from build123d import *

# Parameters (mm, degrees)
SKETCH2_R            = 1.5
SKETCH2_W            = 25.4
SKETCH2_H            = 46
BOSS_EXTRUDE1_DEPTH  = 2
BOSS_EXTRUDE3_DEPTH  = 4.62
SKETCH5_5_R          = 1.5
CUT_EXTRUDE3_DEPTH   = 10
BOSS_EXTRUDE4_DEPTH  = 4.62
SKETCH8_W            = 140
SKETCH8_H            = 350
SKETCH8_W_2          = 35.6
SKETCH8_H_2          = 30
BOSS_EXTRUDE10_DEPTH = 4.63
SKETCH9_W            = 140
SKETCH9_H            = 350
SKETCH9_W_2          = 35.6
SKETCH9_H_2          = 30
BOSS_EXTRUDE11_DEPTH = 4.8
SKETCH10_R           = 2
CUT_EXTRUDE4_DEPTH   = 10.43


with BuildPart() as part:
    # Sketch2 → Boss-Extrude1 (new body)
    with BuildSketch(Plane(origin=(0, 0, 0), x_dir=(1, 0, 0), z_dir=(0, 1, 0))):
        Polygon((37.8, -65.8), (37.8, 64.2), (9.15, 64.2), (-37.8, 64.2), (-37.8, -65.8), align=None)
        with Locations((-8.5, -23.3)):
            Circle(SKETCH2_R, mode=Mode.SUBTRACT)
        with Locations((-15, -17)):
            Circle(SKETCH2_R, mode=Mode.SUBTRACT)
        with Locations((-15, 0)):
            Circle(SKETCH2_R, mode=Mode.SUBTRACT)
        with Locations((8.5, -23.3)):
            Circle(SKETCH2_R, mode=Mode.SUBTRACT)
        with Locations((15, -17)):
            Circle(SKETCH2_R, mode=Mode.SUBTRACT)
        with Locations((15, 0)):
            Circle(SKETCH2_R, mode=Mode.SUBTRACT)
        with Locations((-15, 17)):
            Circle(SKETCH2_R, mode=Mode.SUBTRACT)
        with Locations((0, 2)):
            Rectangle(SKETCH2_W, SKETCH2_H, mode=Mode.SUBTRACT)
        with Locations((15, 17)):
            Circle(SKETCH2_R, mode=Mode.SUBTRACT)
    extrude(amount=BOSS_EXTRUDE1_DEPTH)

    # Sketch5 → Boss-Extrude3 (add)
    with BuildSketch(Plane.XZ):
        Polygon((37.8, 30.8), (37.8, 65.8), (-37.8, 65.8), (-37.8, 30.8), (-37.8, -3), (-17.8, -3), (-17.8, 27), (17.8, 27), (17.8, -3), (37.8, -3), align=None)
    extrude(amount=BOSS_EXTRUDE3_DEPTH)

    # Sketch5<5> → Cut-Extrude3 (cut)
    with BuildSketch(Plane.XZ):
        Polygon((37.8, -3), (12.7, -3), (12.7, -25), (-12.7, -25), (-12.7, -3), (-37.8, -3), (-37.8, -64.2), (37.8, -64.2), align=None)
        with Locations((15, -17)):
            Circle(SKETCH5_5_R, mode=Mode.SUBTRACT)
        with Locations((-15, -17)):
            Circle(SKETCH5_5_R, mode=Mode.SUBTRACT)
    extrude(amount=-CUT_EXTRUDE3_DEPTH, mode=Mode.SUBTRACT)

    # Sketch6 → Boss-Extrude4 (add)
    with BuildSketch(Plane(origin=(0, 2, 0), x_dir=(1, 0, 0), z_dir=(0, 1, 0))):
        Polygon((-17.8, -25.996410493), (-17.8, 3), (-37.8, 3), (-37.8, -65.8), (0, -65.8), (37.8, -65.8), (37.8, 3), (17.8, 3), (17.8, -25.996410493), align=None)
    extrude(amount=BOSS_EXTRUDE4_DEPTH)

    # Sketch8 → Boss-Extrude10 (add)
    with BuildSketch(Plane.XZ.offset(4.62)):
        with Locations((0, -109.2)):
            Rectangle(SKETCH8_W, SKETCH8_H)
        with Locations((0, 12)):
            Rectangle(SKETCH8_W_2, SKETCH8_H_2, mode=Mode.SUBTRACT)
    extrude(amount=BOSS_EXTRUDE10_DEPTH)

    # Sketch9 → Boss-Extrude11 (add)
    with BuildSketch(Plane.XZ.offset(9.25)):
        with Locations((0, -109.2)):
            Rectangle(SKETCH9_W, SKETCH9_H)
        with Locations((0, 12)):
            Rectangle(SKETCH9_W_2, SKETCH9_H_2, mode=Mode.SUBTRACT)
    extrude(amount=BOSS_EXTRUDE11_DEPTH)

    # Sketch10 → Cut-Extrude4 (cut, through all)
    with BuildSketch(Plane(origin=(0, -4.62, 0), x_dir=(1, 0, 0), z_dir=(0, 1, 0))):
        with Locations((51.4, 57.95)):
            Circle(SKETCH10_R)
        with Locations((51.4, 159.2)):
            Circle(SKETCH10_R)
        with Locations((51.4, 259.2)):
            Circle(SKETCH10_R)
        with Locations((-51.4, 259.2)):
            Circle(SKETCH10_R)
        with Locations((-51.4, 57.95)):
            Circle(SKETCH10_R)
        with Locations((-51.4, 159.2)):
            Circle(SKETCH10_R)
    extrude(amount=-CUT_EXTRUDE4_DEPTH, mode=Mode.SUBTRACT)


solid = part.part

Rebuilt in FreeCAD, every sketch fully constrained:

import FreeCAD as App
import Part
import Sketcher

V = App.Vector

doc = App.newDocument("Part")
params = doc.addObject("Spreadsheet::Sheet", "Params")
for row, (alias, value) in enumerate([
    ("sketch1_diameter", "3 mm"),
    ("sketch1_height", "130 mm"),
    ("sketch1_height2", "46 mm"),
    ("sketch1_width", "75.6 mm"),
    ("sketch1_width2", "25.4 mm"),
    ("pad1_length", "2 mm"),
    ("sketch2_width", "20 mm"),
    ("sketch2_height", "30 mm"),
    ("sketch2_width2", "75.6 mm"),
    ("sketch2_height2", "68.8 mm"),
    ("pad2_length", "4.62 mm"),
    ("sketch3_diameter", "3 mm"),
    ("sketch3_height", "22 mm"),
    ("sketch3_width", "25.1 mm"),
    ("sketch3_width2", "25.4 mm"),
    ("sketch3_height2", "61.2 mm"),
    ("pocket1_length", "10 mm"),
    ("sketch4_width", "20 mm"),
    ("sketch4_width2", "75.6 mm"),
    ("sketch4_height", "68.8 mm"),
    ("pad3_length", "4.62 mm"),
    ("sketch5_width", "140 mm"),
    ("sketch5_height", "350 mm"),
    ("sketch5_height2", "30 mm"),
    ("sketch5_width2", "35.6 mm"),
    ("pad4_length", "4.63 mm"),
    ("sketch6_width", "140 mm"),
    ("sketch6_height", "350 mm"),
    ("sketch6_height2", "30 mm"),
    ("sketch6_width2", "35.6 mm"),
    ("pad5_length", "4.8 mm"),
    ("sketch7_diameter", "4 mm"),
], start=1):
    params.set(f"A{row}", alias)
    params.set(f"B{row}", "=" + value)
    params.setAlias(f"B{row}", alias)

body = doc.addObject("PartDesign::Body", "Body")

# Sketch on XZ plane
sketch1 = body.newObject("Sketcher::SketchObject", "Sketch")
sketch1.AttachmentSupport = (doc.getObject("XZ_Plane"), [""])
sketch1.MapMode = "FlatFace"
sketch1.addGeometry([
    Part.LineSegment(V(37.8, 65.8, 0), V(37.8, -64.2, 0)),  # 0
    Part.LineSegment(V(37.8, -64.2, 0), V(-37.8, -64.2, 0)),  # 1
    Part.LineSegment(V(-37.8, -64.2, 0), V(-37.8, 65.8, 0)),  # 2
    Part.LineSegment(V(-37.8, 65.8, 0), V(37.8, 65.8, 0)),  # 3
    Part.Circle(V(-8.5, 23.3, 0), V(0, 0, 1), 1.5),  # 4
    Part.Circle(V(-15, 17, 0), V(0, 0, 1), 1.5),  # 5
    Part.Circle(V(-15, 0, 0), V(0, 0, 1), 1.5),  # 6
    Part.Circle(V(8.5, 23.3, 0), V(0, 0, 1), 1.5),  # 7
    Part.Circle(V(15, 17, 0), V(0, 0, 1), 1.5),  # 8
    Part.Circle(V(15, 0, 0), V(0, 0, 1), 1.5),  # 9
    Part.Circle(V(-15, -17, 0), V(0, 0, 1), 1.5),  # 10
    Part.LineSegment(V(12.7, 21, 0), V(-12.7, 21, 0)),  # 11
    Part.LineSegment(V(-12.7, 21, 0), V(-12.7, -25, 0)),  # 12
    Part.LineSegment(V(-12.7, -25, 0), V(12.7, -25, 0)),  # 13
    Part.LineSegment(V(12.7, -25, 0), V(12.7, 21, 0)),  # 14
    Part.Circle(V(15, -17, 0), V(0, 0, 1), 1.5),  # 15
], False)
sketch1.addConstraint([
    Sketcher.Constraint("Coincident", 0, 2, 1, 1),
    Sketcher.Constraint("Coincident", 1, 2, 2, 1),
    Sketcher.Constraint("Coincident", 2, 2, 3, 1),
    Sketcher.Constraint("Coincident", 3, 2, 0, 1),
    Sketcher.Constraint("Coincident", 11, 2, 12, 1),
    Sketcher.Constraint("Coincident", 12, 2, 13, 1),
    Sketcher.Constraint("Coincident", 13, 2, 14, 1),
    Sketcher.Constraint("Coincident", 14, 2, 11, 1),
    Sketcher.Constraint("Vertical", 0),
    Sketcher.Constraint("Horizontal", 1),
    Sketcher.Constraint("Vertical", 2),
    Sketcher.Constraint("Horizontal", 3),
    Sketcher.Constraint("Horizontal", 11),
    Sketcher.Constraint("Vertical", 12),
    Sketcher.Constraint("Horizontal", 13),
    Sketcher.Constraint("Vertical", 14),
    Sketcher.Constraint("Equal", 4, 5),
    Sketcher.Constraint("Equal", 5, 6),
    Sketcher.Constraint("Equal", 6, 7),
    Sketcher.Constraint("Equal", 7, 8),
    Sketcher.Constraint("Equal", 8, 9),
    Sketcher.Constraint("Equal", 9, 10),
    Sketcher.Constraint("Equal", 10, 15),
    Sketcher.Constraint("Symmetric", 6, 3, 9, 3, -1, 1),
    Sketcher.Constraint("Symmetric", 8, 3, 10, 3, -1, 1),
    Sketcher.Constraint("Symmetric", 5, 3, 15, 3, -1, 1),
    Sketcher.Constraint("Symmetric", 4, 3, 7, 3, -2),
    Sketcher.Constraint("Symmetric", 5, 3, 8, 3, -2),
    Sketcher.Constraint("PointOnObject", 6, 3, -1),
    Sketcher.Constraint("Vertical", 5, 3, 6, 3),
    Sketcher.Constraint("Diameter", 4, 3.0),
    Sketcher.Constraint("DistanceY", 0, 2, 0, 1, 130.0),
    Sketcher.Constraint("DistanceY", 12, 2, 12, 1, 46.0),
    Sketcher.Constraint("DistanceX", 1, 2, 1, 1, 75.6),
    Sketcher.Constraint("DistanceX", 11, 2, 11, 1, 25.4),
    Sketcher.Constraint("DistanceX", 5, 3, -1, 1, 15.0),
    Sketcher.Constraint("DistanceY", -1, 1, 5, 3, 17.0),
    Sketcher.Constraint("DistanceY", -1, 1, 11, 2, 21.0),
    Sketcher.Constraint("DistanceX", 4, 3, 7, 3, 17.0),
    Sketcher.Constraint("DistanceY", -1, 1, 4, 3, 23.3),
    Sketcher.Constraint("DistanceX", -1, 1, 0, 2, 37.8),
    Sketcher.Constraint("DistanceY", 0, 2, -1, 1, 64.2),
    Sketcher.Constraint("DistanceX", 11, 2, -1, 1, 12.7),
])
sketch1.setExpression("Constraints[30]", "Params.sketch1_diameter")
sketch1.setExpression("Constraints[31]", "Params.sketch1_height")
sketch1.setExpression("Constraints[32]", "Params.sketch1_height2")
sketch1.setExpression("Constraints[33]", "Params.sketch1_width")
sketch1.setExpression("Constraints[34]", "Params.sketch1_width2")
pad1 = body.newObject("PartDesign::Pad", "Pad")
pad1.Profile = sketch1
pad1.setExpression("Length", "Params.pad1_length")
pad1.Reversed = True

# Sketch on XZ plane
sketch2 = body.newObject("Sketcher::SketchObject", "Sketch001")
sketch2.AttachmentSupport = (doc.getObject("XZ_Plane"), [""])
sketch2.MapMode = "FlatFace"
sketch2.addGeometry([
    Part.LineSegment(V(38, 66, 0), V(-38, 66, 0)),  # 0
    Part.LineSegment(V(-38, 66, 0), V(-38, -3, 0)),  # 1
    Part.LineSegment(V(-38, -3, 0), V(-18, -3, 0)),  # 2
    Part.LineSegment(V(-18, -3, 0), V(-18, 27, 0)),  # 3
    Part.LineSegment(V(-18, 27, 0), V(18, 27, 0)),  # 4
    Part.LineSegment(V(18, 27, 0), V(18, -3, 0)),  # 5
    Part.LineSegment(V(18, -3, 0), V(38, -3, 0)),  # 6
    Part.LineSegment(V(38, -3, 0), V(38, 66, 0)),  # 7
], False)
sketch2.addConstraint([
    Sketcher.Constraint("Coincident", 0, 2, 1, 1),
    Sketcher.Constraint("Coincident", 1, 2, 2, 1),
    Sketcher.Constraint("Coincident", 2, 2, 3, 1),
    Sketcher.Constraint("Coincident", 3, 2, 4, 1),
    Sketcher.Constraint("Coincident", 4, 2, 5, 1),
    Sketcher.Constraint("Coincident", 5, 2, 6, 1),
    Sketcher.Constraint("Coincident", 6, 2, 7, 1),
    Sketcher.Constraint("Coincident", 7, 2, 0, 1),
    Sketcher.Constraint("Horizontal", 0),
    Sketcher.Constraint("Vertical", 1),
    Sketcher.Constraint("Horizontal", 2),
    Sketcher.Constraint("Vertical", 3),
    Sketcher.Constraint("Horizontal", 4),
    Sketcher.Constraint("Vertical", 5),
    Sketcher.Constraint("Horizontal", 6),
    Sketcher.Constraint("Vertical", 7),
    Sketcher.Constraint("Symmetric", 2, 2, 5, 2, -2),
    Sketcher.Constraint("Equal", 2, 6),
    Sketcher.Constraint("DistanceX", 2, 1, 2, 2, 20.0),
    Sketcher.Constraint("DistanceY", 3, 1, 3, 2, 30.0),
    Sketcher.Constraint("DistanceX", 0, 2, 0, 1, 75.6),
    Sketcher.Constraint("DistanceY", 1, 2, 1, 1, 68.8),
    Sketcher.Constraint("DistanceY", 1, 2, -1, 1, 3.0),
])
sketch2.setExpression("Constraints[18]", "Params.sketch2_width")
sketch2.setExpression("Constraints[19]", "Params.sketch2_height")
sketch2.setExpression("Constraints[20]", "Params.sketch2_width2")
sketch2.setExpression("Constraints[21]", "Params.sketch2_height2")
pad2 = body.newObject("PartDesign::Pad", "Pad001")
pad2.Profile = sketch2
pad2.setExpression("Length", "Params.pad2_length")

# Sketch on XZ plane
sketch3 = body.newObject("Sketcher::SketchObject", "Sketch002")
sketch3.AttachmentSupport = (doc.getObject("XZ_Plane"), [""])
sketch3.MapMode = "FlatFace"
sketch3.addGeometry([
    Part.LineSegment(V(37.8, -3, 0), V(12.7, -3, 0)),  # 0
    Part.LineSegment(V(12.7, -3, 0), V(12.7, -25, 0)),  # 1
    Part.LineSegment(V(12.7, -25, 0), V(-12.7, -25, 0)),  # 2
    Part.LineSegment(V(-12.7, -25, 0), V(-12.7, -3, 0)),  # 3
    Part.LineSegment(V(-12.7, -3, 0), V(-37.8, -3, 0)),  # 4
    Part.LineSegment(V(-37.8, -3, 0), V(-37.8, -64.2, 0)),  # 5
    Part.LineSegment(V(-37.8, -64.2, 0), V(37.8, -64.2, 0)),  # 6
    Part.LineSegment(V(37.8, -64.2, 0), V(37.8, -3, 0)),  # 7
    Part.Circle(V(-15, -17, 0), V(0, 0, 1), 1.5),  # 8
    Part.Circle(V(15, -17, 0), V(0, 0, 1), 1.5),  # 9
], False)
sketch3.addConstraint([
    Sketcher.Constraint("Coincident", 0, 2, 1, 1),
    Sketcher.Constraint("Coincident", 1, 2, 2, 1),
    Sketcher.Constraint("Coincident", 2, 2, 3, 1),
    Sketcher.Constraint("Coincident", 3, 2, 4, 1),
    Sketcher.Constraint("Coincident", 4, 2, 5, 1),
    Sketcher.Constraint("Coincident", 5, 2, 6, 1),
    Sketcher.Constraint("Coincident", 6, 2, 7, 1),
    Sketcher.Constraint("Coincident", 7, 2, 0, 1),
    Sketcher.Constraint("Horizontal", 0),
    Sketcher.Constraint("Vertical", 1),
    Sketcher.Constraint("Horizontal", 2),
    Sketcher.Constraint("Vertical", 3),
    Sketcher.Constraint("Horizontal", 4),
    Sketcher.Constraint("Vertical", 5),
    Sketcher.Constraint("Horizontal", 6),
    Sketcher.Constraint("Vertical", 7),
    Sketcher.Constraint("Equal", 8, 9),
    Sketcher.Constraint("Symmetric", 8, 3, 9, 3, -2),
    Sketcher.Constraint("Symmetric", 0, 2, 3, 2, -2),
    Sketcher.Constraint("Equal", 0, 4),
    Sketcher.Constraint("Diameter", 8, 3.0),
    Sketcher.Constraint("DistanceY", 1, 2, 1, 1, 22.0),
    Sketcher.Constraint("DistanceX", 0, 2, 0, 1, 25.1),
    Sketcher.Constraint("DistanceX", 2, 2, 2, 1, 25.4),
    Sketcher.Constraint("DistanceY", 5, 2, 5, 1, 61.2),
    Sketcher.Constraint("DistanceX", 8, 3, -1, 1, 15.0),
    Sketcher.Constraint("DistanceY", 8, 3, -1, 1, 17.0),
    Sketcher.Constraint("DistanceY", 0, 2, -1, 1, 3.0),
])
sketch3.setExpression("Constraints[20]", "Params.sketch3_diameter")
sketch3.setExpression("Constraints[21]", "Params.sketch3_height")
sketch3.setExpression("Constraints[22]", "Params.sketch3_width")
sketch3.setExpression("Constraints[23]", "Params.sketch3_width2")
sketch3.setExpression("Constraints[24]", "Params.sketch3_height2")
pocket1 = body.newObject("PartDesign::Pocket", "Pocket")
pocket1.Profile = sketch3
pocket1.setExpression("Length", "Params.pocket1_length")

# Sketch on XZ plane
sketch4 = body.newObject("Sketcher::SketchObject", "Sketch003")
sketch4.AttachmentSupport = (doc.getObject("XZ_Plane"), [""])
sketch4.MapMode = "FlatFace"
sketch4.AttachmentOffset = App.Placement(V(0, 0, -2), App.Rotation())
sketch4.addGeometry([
    Part.LineSegment(V(-18, 26, 0), V(-18, -3, 0)),  # 0
    Part.LineSegment(V(-18, -3, 0), V(-38, -3, 0)),  # 1
    Part.LineSegment(V(-38, -3, 0), V(-38, 66, 0)),  # 2
    Part.LineSegment(V(-38, 66, 0), V(38, 66, 0)),  # 3
    Part.LineSegment(V(38, 66, 0), V(38, -3, 0)),  # 4
    Part.LineSegment(V(38, -3, 0), V(18, -3, 0)),  # 5
    Part.LineSegment(V(18, -3, 0), V(18, 26, 0)),  # 6
    Part.LineSegment(V(18, 26, 0), V(-18, 26, 0)),  # 7
], False)
sketch4.addConstraint([
    Sketcher.Constraint("Coincident", 0, 2, 1, 1),
    Sketcher.Constraint("Coincident", 1, 2, 2, 1),
    Sketcher.Constraint("Coincident", 2, 2, 3, 1),
    Sketcher.Constraint("Coincident", 3, 2, 4, 1),
    Sketcher.Constraint("Coincident", 4, 2, 5, 1),
    Sketcher.Constraint("Coincident", 5, 2, 6, 1),
    Sketcher.Constraint("Coincident", 6, 2, 7, 1),
    Sketcher.Constraint("Coincident", 7, 2, 0, 1),
    Sketcher.Constraint("Vertical", 0),
    Sketcher.Constraint("Horizontal", 1),
    Sketcher.Constraint("Vertical", 2),
    Sketcher.Constraint("Horizontal", 3),
    Sketcher.Constraint("Vertical", 4),
    Sketcher.Constraint("Horizontal", 5),
    Sketcher.Constraint("Vertical", 6),
    Sketcher.Constraint("Horizontal", 7),
    Sketcher.Constraint("Symmetric", 1, 2, 4, 2, -2),
    Sketcher.Constraint("Equal", 1, 5),
    Sketcher.Constraint("DistanceX", 1, 2, 1, 1, 20.0),
    Sketcher.Constraint("DistanceX", 3, 1, 3, 2, 75.6),
    Sketcher.Constraint("DistanceY", 2, 1, 2, 2, 68.8),
    Sketcher.Constraint("DistanceY", 0, 2, -1, 1, 3.0),
    Sketcher.Constraint("DistanceY", 0, 2, 0, 1, 28.99641),
])
sketch4.setExpression("Constraints[18]", "Params.sketch4_width")
sketch4.setExpression("Constraints[19]", "Params.sketch4_width2")
sketch4.setExpression("Constraints[20]", "Params.sketch4_height")
pad3 = body.newObject("PartDesign::Pad", "Pad002")
pad3.Profile = sketch4
pad3.setExpression("Length", "Params.pad3_length")
pad3.Reversed = True

# Sketch on XZ plane
sketch5 = body.newObject("Sketcher::SketchObject", "Sketch004")
sketch5.AttachmentSupport = (doc.getObject("XZ_Plane"), [""])
sketch5.MapMode = "FlatFace"
sketch5.AttachmentOffset = App.Placement(V(0, 0, 4.62), App.Rotation())
sketch5.addGeometry([
    Part.LineSegment(V(-70, 66, 0), V(-70, -284, 0)),  # 0
    Part.LineSegment(V(-70, -284, 0), V(70, -284, 0)),  # 1
    Part.LineSegment(V(70, -284, 0), V(70, 66, 0)),  # 2
    Part.LineSegment(V(70, 66, 0), V(-70, 66, 0)),  # 3
    Part.LineSegment(V(18, -3, 0), V(-18, -3, 0)),  # 4
    Part.LineSegment(V(-18, -3, 0), V(-18, 27, 0)),  # 5
    Part.LineSegment(V(-18, 27, 0), V(18, 27, 0)),  # 6
    Part.LineSegment(V(18, 27, 0), V(18, -3, 0)),  # 7
], False)
sketch5.addConstraint([
    Sketcher.Constraint("Coincident", 0, 2, 1, 1),
    Sketcher.Constraint("Coincident", 1, 2, 2, 1),
    Sketcher.Constraint("Coincident", 2, 2, 3, 1),
    Sketcher.Constraint("Coincident", 3, 2, 0, 1),
    Sketcher.Constraint("Coincident", 4, 2, 5, 1),
    Sketcher.Constraint("Coincident", 5, 2, 6, 1),
    Sketcher.Constraint("Coincident", 6, 2, 7, 1),
    Sketcher.Constraint("Coincident", 7, 2, 4, 1),
    Sketcher.Constraint("Vertical", 0),
    Sketcher.Constraint("Horizontal", 1),
    Sketcher.Constraint("Vertical", 2),
    Sketcher.Constraint("Horizontal", 3),
    Sketcher.Constraint("Horizontal", 4),
    Sketcher.Constraint("Vertical", 5),
    Sketcher.Constraint("Horizontal", 6),
    Sketcher.Constraint("Vertical", 7),
    Sketcher.Constraint("DistanceX", 1, 1, 1, 2, 140.0),
    Sketcher.Constraint("DistanceY", 0, 2, 0, 1, 350.0),
    Sketcher.Constraint("DistanceY", 5, 1, 5, 2, 30.0),
    Sketcher.Constraint("DistanceX", 4, 2, 4, 1, 35.6),
    Sketcher.Constraint("DistanceX", 0, 2, -1, 1, 70.0),
    Sketcher.Constraint("DistanceY", 4, 2, -1, 1, 3.0),
    Sketcher.Constraint("DistanceY", 0, 2, -1, 1, 284.2),
    Sketcher.Constraint("DistanceX", 4, 2, -1, 1, 17.8),
])
sketch5.setExpression("Constraints[16]", "Params.sketch5_width")
sketch5.setExpression("Constraints[17]", "Params.sketch5_height")
sketch5.setExpression("Constraints[18]", "Params.sketch5_height2")
sketch5.setExpression("Constraints[19]", "Params.sketch5_width2")
pad4 = body.newObject("PartDesign::Pad", "Pad003")
pad4.Profile = sketch5
pad4.setExpression("Length", "Params.pad4_length")

# Sketch on XZ plane
sketch6 = body.newObject("Sketcher::SketchObject", "Sketch005")
sketch6.AttachmentSupport = (doc.getObject("XZ_Plane"), [""])
sketch6.MapMode = "FlatFace"
sketch6.AttachmentOffset = App.Placement(V(0, 0, 9.25), App.Rotation())
sketch6.addGeometry([
    Part.LineSegment(V(-70, 66, 0), V(-70, -284, 0)),  # 0
    Part.LineSegment(V(-70, -284, 0), V(70, -284, 0)),  # 1
    Part.LineSegment(V(70, -284, 0), V(70, 66, 0)),  # 2
    Part.LineSegment(V(70, 66, 0), V(-70, 66, 0)),  # 3
    Part.LineSegment(V(18, -3, 0), V(-18, -3, 0)),  # 4
    Part.LineSegment(V(-18, -3, 0), V(-18, 27, 0)),  # 5
    Part.LineSegment(V(-18, 27, 0), V(18, 27, 0)),  # 6
    Part.LineSegment(V(18, 27, 0), V(18, -3, 0)),  # 7
], False)
sketch6.addConstraint([
    Sketcher.Constraint("Coincident", 0, 2, 1, 1),
    Sketcher.Constraint("Coincident", 1, 2, 2, 1),
    Sketcher.Constraint("Coincident", 2, 2, 3, 1),
    Sketcher.Constraint("Coincident", 3, 2, 0, 1),
    Sketcher.Constraint("Coincident", 4, 2, 5, 1),
    Sketcher.Constraint("Coincident", 5, 2, 6, 1),
    Sketcher.Constraint("Coincident", 6, 2, 7, 1),
    Sketcher.Constraint("Coincident", 7, 2, 4, 1),
    Sketcher.Constraint("Vertical", 0),
    Sketcher.Constraint("Horizontal", 1),
    Sketcher.Constraint("Vertical", 2),
    Sketcher.Constraint("Horizontal", 3),
    Sketcher.Constraint("Horizontal", 4),
    Sketcher.Constraint("Vertical", 5),
    Sketcher.Constraint("Horizontal", 6),
    Sketcher.Constraint("Vertical", 7),
    Sketcher.Constraint("DistanceX", 1, 1, 1, 2, 140.0),
    Sketcher.Constraint("DistanceY", 0, 2, 0, 1, 350.0),
    Sketcher.Constraint("DistanceY", 5, 1, 5, 2, 30.0),
    Sketcher.Constraint("DistanceX", 4, 2, 4, 1, 35.6),
    Sketcher.Constraint("DistanceX", 0, 2, -1, 1, 70.0),
    Sketcher.Constraint("DistanceY", 4, 2, -1, 1, 3.0),
    Sketcher.Constraint("DistanceY", 0, 2, -1, 1, 284.2),
    Sketcher.Constraint("DistanceX", 4, 2, -1, 1, 17.8),
])
sketch6.setExpression("Constraints[16]", "Params.sketch6_width")
sketch6.setExpression("Constraints[17]", "Params.sketch6_height")
sketch6.setExpression("Constraints[18]", "Params.sketch6_height2")
sketch6.setExpression("Constraints[19]", "Params.sketch6_width2")
pad5 = body.newObject("PartDesign::Pad", "Pad004")
pad5.Profile = sketch6
pad5.setExpression("Length", "Params.pad5_length")

# Sketch on XZ plane
sketch7 = body.newObject("Sketcher::SketchObject", "Sketch006")
sketch7.AttachmentSupport = (doc.getObject("XZ_Plane"), [""])
sketch7.MapMode = "FlatFace"
sketch7.AttachmentOffset = App.Placement(V(0, 0, 4.62), App.Rotation())
sketch7.addGeometry([
    Part.Circle(V(51.4, -58, 0), V(0, 0, 1), 2),  # 0
    Part.Circle(V(51.4, -159.2, 0), V(0, 0, 1), 2),  # 1
    Part.Circle(V(51.4, -259.2, 0), V(0, 0, 1), 2),  # 2
    Part.Circle(V(-51.4, -259.2, 0), V(0, 0, 1), 2),  # 3
    Part.Circle(V(-51.4, -58, 0), V(0, 0, 1), 2),  # 4
    Part.Circle(V(-51.4, -159.2, 0), V(0, 0, 1), 2),  # 5
], False)
sketch7.addConstraint([
    Sketcher.Constraint("Equal", 0, 1),
    Sketcher.Constraint("Equal", 1, 2),
    Sketcher.Constraint("Equal", 2, 3),
    Sketcher.Constraint("Equal", 3, 4),
    Sketcher.Constraint("Equal", 4, 5),
    Sketcher.Constraint("Symmetric", 2, 3, 3, 3, -2),
    Sketcher.Constraint("Symmetric", 0, 3, 4, 3, -2),
    Sketcher.Constraint("Symmetric", 1, 3, 5, 3, -2),
    Sketcher.Constraint("Vertical", 0, 3, 1, 3),
    Sketcher.Constraint("Vertical", 1, 3, 2, 3),
    Sketcher.Constraint("Diameter", 0, 4.0),
    Sketcher.Constraint("DistanceY", 2, 3, 1, 3, 100.0),
    Sketcher.Constraint("DistanceX", -1, 1, 0, 3, 51.4),
    Sketcher.Constraint("DistanceY", 1, 3, -1, 1, 159.2),
    Sketcher.Constraint("DistanceY", 0, 3, -1, 1, 57.95),
])
sketch7.setExpression("Constraints[10]", "Params.sketch7_diameter")
pocket2 = body.newObject("PartDesign::Pocket", "Pocket001")
pocket2.Profile = sketch7
pocket2.Type = "ThroughAll"
pocket2.Reversed = True

doc.recompute()
